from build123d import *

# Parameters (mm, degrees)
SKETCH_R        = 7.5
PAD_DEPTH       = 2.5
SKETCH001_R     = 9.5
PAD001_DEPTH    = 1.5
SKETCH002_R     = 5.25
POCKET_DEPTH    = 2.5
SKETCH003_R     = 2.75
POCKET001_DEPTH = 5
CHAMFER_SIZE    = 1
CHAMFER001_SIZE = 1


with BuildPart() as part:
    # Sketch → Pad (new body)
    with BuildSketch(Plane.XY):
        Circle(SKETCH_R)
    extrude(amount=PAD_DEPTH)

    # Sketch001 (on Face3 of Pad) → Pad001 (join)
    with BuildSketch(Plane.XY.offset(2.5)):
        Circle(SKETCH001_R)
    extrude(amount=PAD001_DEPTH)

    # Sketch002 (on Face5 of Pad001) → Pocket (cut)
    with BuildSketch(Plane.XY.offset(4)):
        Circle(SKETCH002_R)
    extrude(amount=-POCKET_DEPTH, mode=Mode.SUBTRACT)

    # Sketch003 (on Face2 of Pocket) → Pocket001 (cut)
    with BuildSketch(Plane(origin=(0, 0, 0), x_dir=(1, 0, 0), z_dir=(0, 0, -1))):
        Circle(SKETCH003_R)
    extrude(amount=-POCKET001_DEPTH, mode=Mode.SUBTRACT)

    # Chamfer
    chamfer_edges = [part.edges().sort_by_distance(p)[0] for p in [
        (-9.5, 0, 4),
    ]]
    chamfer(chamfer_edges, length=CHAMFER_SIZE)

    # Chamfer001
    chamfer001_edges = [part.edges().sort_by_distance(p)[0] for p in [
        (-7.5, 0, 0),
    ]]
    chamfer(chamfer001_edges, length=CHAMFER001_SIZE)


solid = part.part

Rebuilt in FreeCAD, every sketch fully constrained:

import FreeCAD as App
import Part
import Sketcher
Q = App.Units.Quantity


def edges_at(feature, points):
    """Names of the edges that pass closest to the given points."""
    edges = feature.Shape.Edges
    near = lambda p: min(range(len(edges)), key=lambda i: edges[i].distToShape(Part.Vertex(*p))[0])
    return sorted({f"Edge{near(p) + 1}" for p in points})

doc = App.newDocument("Part")
body = doc.addObject("PartDesign::Body", "Body")

# Sketch on XY plane
sketch1 = body.newObject("Sketcher::SketchObject", "Sketch")
sketch1.AttachmentSupport = (doc.getObject("XY_Plane"), [""])
sketch1.MapMode = "FlatFace"
sketch1.addGeometry(Part.Circle(App.Vector(0, 0, 0), App.Vector(0, 0, 1), 7.5), False)
sketch1.addConstraint(Sketcher.Constraint("Coincident", 0, 3, -1, 1))
sketch1.addConstraint(Sketcher.Constraint("Diameter", 0, Q("15 mm")))
pad1 = body.newObject("PartDesign::Pad", "Pad")
pad1.Profile = sketch1
pad1.Length = 2.5

# Sketch on XY plane
sketch2 = body.newObject("Sketcher::SketchObject", "Sketch001")
sketch2.AttachmentSupport = (doc.getObject("XY_Plane"), [""])
sketch2.MapMode = "FlatFace"
sketch2.AttachmentOffset = App.Placement(App.Vector(0, 0, 2.5), App.Rotation())
sketch2.addGeometry(Part.Circle(App.Vector(0, 0, 0), App.Vector(0, 0, 1), 9.5), False)
sketch2.addConstraint(Sketcher.Constraint("Coincident", 0, 3, -1, 1))
sketch2.addConstraint(Sketcher.Constraint("Diameter", 0, Q("19 mm")))
pad2 = body.newObject("PartDesign::Pad", "Pad001")
pad2.Profile = sketch2
pad2.Length = 1.5

# Sketch on XY plane
sketch3 = body.newObject("Sketcher::SketchObject", "Sketch002")
sketch3.AttachmentSupport = (doc.getObject("XY_Plane"), [""])
sketch3.MapMode = "FlatFace"
sketch3.AttachmentOffset = App.Placement(App.Vector(0, 0, 4), App.Rotation())
sketch3.addGeometry(Part.Circle(App.Vector(0, 0, 0), App.Vector(0, 0, 1), 5.25), False)
sketch3.addConstraint(Sketcher.Constraint("Coincident", 0, 3, -1, 1))
sketch3.addConstraint(Sketcher.Constraint("Diameter", 0, Q("10.5 mm")))
pocket1 = body.newObject("PartDesign::Pocket", "Pocket")
pocket1.Profile = sketch3
pocket1.Length = 2.5

# Sketch on XY plane
sketch4 = body.newObject("Sketcher::SketchObject", "Sketch003")
sketch4.AttachmentSupport = (doc.getObject("XY_Plane"), [""])
sketch4.MapMode = "FlatFace"
sketch4.addGeometry(Part.Circle(App.Vector(0, 0, 0), App.Vector(0, 0, 1), 2.75), False)
sketch4.addConstraint(Sketcher.Constraint("Coincident", 0, 3, -1, 1))
sketch4.addConstraint(Sketcher.Constraint("Diameter", 0, Q("5.5 mm")))
pocket2 = body.newObject("PartDesign::Pocket", "Pocket001")
pocket2.Profile = sketch4
pocket2.Length = 5
pocket2.Reversed = True
doc.recompute()

chamfer = body.newObject("PartDesign::Chamfer", "Chamfer")
chamfer.Base = (pocket2, edges_at(pocket2, [(-9.5, 0, 4)]))
chamfer.Size = 1
doc.recompute()

chamfer2 = body.newObject("PartDesign::Chamfer", "Chamfer001")
chamfer2.Base = (chamfer, edges_at(chamfer, [(-7.5, 0, 0)]))
chamfer2.Size = 1

doc.recompute()
